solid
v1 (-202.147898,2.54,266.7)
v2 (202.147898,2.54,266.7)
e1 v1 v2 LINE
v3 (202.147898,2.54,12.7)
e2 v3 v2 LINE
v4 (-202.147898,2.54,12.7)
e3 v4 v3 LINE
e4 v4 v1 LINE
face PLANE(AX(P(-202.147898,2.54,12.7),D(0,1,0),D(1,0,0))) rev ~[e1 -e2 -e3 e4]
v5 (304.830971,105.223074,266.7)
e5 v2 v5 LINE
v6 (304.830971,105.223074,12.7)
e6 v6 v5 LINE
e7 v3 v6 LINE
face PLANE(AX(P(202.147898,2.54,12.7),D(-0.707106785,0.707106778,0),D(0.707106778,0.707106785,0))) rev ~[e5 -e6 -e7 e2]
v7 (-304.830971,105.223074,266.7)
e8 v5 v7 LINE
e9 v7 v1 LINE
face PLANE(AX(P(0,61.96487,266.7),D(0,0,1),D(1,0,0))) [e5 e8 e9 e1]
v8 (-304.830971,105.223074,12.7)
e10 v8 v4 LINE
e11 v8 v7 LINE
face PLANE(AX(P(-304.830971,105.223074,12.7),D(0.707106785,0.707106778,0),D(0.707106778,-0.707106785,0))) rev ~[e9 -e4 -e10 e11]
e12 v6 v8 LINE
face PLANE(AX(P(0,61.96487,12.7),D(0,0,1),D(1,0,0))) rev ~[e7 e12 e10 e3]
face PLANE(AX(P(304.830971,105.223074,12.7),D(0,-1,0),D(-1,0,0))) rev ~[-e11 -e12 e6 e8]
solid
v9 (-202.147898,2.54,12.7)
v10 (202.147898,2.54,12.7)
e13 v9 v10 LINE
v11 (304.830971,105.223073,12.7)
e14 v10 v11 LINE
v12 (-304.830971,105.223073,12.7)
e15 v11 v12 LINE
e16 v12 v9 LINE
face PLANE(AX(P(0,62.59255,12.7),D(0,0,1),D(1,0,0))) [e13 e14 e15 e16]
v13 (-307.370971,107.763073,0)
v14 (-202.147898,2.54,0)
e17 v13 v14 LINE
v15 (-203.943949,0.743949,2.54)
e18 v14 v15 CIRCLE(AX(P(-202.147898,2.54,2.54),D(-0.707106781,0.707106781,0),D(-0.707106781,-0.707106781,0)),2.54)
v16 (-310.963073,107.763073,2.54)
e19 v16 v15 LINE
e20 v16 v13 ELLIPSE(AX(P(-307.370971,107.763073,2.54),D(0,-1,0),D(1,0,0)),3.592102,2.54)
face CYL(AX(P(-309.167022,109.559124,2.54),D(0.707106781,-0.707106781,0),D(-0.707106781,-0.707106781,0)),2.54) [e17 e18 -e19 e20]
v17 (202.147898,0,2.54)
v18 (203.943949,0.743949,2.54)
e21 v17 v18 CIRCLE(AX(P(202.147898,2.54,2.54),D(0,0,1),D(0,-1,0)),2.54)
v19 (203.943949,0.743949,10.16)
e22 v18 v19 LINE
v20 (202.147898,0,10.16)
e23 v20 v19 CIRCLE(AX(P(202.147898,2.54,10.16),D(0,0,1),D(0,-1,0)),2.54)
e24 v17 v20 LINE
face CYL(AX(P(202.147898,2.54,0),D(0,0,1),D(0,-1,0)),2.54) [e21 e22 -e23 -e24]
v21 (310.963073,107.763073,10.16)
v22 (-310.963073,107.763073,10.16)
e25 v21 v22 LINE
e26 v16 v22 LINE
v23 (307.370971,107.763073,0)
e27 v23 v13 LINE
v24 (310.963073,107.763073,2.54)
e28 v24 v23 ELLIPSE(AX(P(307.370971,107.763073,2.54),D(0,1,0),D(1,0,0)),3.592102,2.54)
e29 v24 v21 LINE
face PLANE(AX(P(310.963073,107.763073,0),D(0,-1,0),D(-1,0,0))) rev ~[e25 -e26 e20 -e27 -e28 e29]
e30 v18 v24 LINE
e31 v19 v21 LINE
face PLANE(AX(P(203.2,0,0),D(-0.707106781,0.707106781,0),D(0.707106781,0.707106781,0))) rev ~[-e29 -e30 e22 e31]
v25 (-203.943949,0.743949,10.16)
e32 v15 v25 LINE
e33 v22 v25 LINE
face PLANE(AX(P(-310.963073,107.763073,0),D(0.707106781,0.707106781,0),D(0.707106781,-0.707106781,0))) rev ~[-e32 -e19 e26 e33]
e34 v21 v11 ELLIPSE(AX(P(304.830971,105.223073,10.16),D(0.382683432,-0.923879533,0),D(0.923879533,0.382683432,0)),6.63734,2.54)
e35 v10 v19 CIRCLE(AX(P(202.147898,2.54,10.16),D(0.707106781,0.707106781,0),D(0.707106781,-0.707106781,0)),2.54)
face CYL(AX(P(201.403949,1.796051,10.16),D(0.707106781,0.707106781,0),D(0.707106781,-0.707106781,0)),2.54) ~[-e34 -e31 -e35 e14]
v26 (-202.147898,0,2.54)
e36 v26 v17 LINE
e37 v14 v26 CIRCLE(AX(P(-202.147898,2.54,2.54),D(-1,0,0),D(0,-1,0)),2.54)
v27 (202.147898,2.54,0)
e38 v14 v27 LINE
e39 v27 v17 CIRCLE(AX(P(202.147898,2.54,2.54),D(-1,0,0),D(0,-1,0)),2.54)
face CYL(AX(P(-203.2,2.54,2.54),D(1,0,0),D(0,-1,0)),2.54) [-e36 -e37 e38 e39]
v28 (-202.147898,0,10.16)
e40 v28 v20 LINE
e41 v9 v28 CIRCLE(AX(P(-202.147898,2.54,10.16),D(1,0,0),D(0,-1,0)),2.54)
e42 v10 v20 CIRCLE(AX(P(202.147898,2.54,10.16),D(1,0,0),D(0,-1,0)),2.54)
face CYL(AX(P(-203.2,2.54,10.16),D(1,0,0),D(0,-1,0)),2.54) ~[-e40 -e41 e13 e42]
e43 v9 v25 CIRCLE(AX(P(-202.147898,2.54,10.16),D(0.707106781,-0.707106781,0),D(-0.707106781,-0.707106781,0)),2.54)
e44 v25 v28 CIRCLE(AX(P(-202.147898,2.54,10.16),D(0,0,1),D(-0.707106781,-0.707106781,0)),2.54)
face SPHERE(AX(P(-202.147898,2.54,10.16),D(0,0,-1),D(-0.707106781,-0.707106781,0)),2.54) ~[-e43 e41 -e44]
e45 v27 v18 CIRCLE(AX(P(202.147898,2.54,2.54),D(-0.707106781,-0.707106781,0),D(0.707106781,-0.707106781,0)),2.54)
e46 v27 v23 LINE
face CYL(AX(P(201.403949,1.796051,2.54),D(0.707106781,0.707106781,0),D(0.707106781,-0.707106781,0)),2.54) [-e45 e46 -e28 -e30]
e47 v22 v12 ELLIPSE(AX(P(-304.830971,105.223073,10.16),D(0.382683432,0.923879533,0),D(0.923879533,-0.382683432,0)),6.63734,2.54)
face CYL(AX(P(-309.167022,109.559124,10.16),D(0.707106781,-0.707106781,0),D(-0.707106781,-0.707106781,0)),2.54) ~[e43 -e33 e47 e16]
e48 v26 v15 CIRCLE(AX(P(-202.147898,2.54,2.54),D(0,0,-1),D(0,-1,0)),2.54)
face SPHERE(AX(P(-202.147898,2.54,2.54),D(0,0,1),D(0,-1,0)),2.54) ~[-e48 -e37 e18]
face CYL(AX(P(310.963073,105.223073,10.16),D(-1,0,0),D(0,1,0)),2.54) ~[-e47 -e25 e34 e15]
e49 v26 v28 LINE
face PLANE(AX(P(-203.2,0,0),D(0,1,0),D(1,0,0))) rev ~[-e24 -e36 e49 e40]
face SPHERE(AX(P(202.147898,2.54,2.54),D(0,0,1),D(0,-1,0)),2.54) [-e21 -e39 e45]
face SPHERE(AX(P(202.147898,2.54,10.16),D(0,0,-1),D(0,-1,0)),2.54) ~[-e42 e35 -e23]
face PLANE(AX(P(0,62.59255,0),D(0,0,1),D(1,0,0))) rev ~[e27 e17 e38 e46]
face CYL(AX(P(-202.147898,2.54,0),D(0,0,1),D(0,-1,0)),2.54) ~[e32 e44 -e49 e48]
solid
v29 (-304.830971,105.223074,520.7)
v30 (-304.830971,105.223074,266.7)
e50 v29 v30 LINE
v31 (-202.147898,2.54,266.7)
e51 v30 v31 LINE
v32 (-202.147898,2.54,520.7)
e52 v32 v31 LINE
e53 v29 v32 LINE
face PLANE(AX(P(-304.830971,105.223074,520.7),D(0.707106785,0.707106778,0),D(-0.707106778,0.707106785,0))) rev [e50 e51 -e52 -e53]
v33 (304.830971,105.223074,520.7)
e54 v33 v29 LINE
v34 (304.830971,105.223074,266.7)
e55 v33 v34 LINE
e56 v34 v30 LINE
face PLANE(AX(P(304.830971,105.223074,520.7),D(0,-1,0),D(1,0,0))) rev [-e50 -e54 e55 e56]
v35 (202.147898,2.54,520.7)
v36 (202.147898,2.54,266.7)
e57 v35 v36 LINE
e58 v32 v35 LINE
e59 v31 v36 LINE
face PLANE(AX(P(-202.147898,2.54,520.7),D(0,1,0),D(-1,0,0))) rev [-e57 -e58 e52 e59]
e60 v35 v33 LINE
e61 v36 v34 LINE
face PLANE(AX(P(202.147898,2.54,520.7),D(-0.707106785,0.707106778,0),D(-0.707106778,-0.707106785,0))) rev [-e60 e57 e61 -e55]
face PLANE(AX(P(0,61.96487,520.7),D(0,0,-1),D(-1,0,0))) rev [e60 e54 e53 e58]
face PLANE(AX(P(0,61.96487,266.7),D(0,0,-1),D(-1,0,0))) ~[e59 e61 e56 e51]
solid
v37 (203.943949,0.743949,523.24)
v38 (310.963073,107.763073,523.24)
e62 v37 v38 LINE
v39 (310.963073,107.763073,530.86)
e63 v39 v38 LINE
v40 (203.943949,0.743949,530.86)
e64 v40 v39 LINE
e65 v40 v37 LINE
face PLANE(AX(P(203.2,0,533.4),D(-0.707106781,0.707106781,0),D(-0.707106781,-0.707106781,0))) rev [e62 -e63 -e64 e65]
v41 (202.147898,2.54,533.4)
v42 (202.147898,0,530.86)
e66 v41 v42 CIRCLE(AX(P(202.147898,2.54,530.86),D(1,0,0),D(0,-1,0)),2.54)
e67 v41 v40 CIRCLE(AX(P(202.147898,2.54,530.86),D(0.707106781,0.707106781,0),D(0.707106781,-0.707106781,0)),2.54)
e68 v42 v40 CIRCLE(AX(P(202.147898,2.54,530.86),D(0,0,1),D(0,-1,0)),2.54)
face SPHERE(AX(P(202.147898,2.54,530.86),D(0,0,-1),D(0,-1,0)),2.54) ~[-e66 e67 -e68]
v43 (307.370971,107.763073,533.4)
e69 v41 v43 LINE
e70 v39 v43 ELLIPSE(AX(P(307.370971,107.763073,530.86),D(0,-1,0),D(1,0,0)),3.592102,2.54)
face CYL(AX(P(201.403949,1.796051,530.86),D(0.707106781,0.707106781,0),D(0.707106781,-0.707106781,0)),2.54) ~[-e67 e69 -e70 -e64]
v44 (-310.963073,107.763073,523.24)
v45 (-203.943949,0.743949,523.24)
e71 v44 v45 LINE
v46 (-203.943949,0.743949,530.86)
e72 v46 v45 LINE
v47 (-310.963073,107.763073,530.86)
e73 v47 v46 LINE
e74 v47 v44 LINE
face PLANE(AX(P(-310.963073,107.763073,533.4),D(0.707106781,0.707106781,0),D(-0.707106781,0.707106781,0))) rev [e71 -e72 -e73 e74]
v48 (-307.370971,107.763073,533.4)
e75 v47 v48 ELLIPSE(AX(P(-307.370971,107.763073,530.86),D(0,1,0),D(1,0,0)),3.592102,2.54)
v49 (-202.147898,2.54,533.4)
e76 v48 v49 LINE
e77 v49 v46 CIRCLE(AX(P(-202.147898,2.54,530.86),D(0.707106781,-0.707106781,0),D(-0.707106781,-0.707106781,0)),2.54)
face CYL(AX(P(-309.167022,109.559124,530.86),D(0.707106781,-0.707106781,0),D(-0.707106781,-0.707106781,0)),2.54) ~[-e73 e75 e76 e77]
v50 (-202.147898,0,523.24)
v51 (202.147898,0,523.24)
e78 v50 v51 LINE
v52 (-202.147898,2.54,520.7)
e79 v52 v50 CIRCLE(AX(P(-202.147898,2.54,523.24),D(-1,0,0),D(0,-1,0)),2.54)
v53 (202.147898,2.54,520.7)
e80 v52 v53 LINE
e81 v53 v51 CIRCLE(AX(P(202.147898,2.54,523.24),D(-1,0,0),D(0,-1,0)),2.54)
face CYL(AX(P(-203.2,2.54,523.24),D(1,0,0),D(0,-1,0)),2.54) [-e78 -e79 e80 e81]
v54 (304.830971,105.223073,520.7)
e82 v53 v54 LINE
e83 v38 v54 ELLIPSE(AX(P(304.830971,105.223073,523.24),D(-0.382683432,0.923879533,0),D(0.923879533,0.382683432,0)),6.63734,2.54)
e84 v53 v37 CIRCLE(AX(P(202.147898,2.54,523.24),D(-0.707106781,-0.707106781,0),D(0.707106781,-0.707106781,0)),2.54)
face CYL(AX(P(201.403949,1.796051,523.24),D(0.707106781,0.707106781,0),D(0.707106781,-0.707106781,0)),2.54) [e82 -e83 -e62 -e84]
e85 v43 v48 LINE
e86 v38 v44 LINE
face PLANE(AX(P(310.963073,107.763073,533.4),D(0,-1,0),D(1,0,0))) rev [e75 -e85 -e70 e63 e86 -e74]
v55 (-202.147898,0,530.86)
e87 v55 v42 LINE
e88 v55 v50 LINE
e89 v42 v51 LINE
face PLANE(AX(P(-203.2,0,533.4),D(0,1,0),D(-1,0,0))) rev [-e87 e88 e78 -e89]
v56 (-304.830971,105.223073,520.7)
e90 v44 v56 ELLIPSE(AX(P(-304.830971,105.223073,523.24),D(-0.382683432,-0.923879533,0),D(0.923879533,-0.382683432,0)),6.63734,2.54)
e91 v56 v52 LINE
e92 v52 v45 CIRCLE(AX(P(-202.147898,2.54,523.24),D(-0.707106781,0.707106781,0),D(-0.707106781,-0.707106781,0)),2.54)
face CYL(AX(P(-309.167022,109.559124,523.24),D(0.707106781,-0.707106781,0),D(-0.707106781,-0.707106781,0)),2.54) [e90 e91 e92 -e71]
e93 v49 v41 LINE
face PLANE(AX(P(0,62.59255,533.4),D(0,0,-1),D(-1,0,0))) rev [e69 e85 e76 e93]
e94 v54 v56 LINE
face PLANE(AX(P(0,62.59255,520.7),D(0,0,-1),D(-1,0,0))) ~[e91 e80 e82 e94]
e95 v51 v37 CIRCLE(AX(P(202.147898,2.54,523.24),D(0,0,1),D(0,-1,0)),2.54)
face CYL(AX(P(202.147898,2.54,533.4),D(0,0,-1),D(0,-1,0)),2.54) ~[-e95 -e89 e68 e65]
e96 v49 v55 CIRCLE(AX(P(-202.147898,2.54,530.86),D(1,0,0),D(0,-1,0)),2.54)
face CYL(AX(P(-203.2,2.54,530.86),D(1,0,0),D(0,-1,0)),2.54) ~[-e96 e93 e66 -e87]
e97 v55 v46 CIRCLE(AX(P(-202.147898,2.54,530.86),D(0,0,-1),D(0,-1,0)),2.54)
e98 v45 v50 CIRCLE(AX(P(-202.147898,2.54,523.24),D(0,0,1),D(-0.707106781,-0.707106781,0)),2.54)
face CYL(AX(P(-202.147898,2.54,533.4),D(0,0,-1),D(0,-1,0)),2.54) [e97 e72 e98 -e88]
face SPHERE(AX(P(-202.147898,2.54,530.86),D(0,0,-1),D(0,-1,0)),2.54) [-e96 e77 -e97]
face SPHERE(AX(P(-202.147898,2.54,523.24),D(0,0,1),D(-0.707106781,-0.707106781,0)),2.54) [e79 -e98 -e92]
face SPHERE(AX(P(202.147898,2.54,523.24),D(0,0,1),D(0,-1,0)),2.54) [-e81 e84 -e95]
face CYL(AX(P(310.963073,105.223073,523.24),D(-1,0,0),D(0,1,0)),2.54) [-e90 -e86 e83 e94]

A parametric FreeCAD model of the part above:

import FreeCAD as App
import Part
import Sketcher
Q = App.Units.Quantity


def edges_at(feature, points):
    """Names of the edges that pass closest to the given points."""
    edges = feature.Shape.Edges
    near = lambda p: min(range(len(edges)), key=lambda i: edges[i].distToShape(Part.Vertex(*p))[0])
    return sorted({f"Edge{near(p) + 1}" for p in points})


def add_polygon(sketch, points):
    """Adds a closed chain of lines whose ends are joined by coincident constraints."""
    first, n = sketch.GeometryCount, len(points)
    for a, b in zip(points, points[1:] + points[:1]):
        sketch.addGeometry(Part.LineSegment(App.Vector(*a, 0), App.Vector(*b, 0)), False)
    for i in range(n):
        sketch.addConstraint(Sketcher.Constraint("Coincident", first + i, 2, first + (i + 1) % n, 1))

doc = App.newDocument("Part")
body = doc.addObject("PartDesign::Body", "Body")

sketch1 = doc.addObject("Sketcher::SketchObject", "Sketch")
body.addObject(sketch1)
sketch1.AttachmentSupport = (doc.XY_Plane, [""])
sketch1.MapMode = "FlatFace"
add_polygon(sketch1, [(-203.2, 0), (203.2, 0), (310.963073, 107.763073), (-310.963073, 107.763073)])
sketch1.addConstraint([
    Sketcher.Constraint("Horizontal", 0),
    Sketcher.Constraint("Horizontal", 2),
    Sketcher.Constraint("Symmetric", 0, 2, 3, 2, -1, 1),
    Sketcher.Constraint("Perpendicular", 1, 3),
    Sketcher.Constraint("Equal", 1, 3),
    Sketcher.Constraint("DistanceX", 0, 1, 0, 2, Q("16 in")),
    Sketcher.Constraint("Distance", 1, Q("6 in")),
])
pad1 = doc.addObject("PartDesign::Pad", "Pad")
body.addObject(pad1)
pad1.Profile = sketch1
pad1.Length = Q("0.5 in")
doc.recompute()

fillet = doc.addObject("PartDesign::Fillet", "Fillet")
body.addObject(fillet)
fillet.Base = (pad1, edges_at(pad1, [
    (-257.082, 53.882, 12.7),
    (0, 0, 12.7),
    (257.082, 53.882, 12.7),
    (0, 107.763, 12.7),
    (-203.2, 0, 6.35),
    (203.2, 0, 6.35),
    (0, 0, 0),
    (257.082, 53.882, 0),
    (-257.082, 53.882, 0),
]))
fillet.Radius = Q("0.1 in")
body2 = doc.addObject("PartDesign::Body", "Body001")

sketch2 = doc.addObject("Sketcher::SketchObject", "Sketch001")
body2.addObject(sketch2)
sketch2.AttachmentSupport = (doc.getObject("XY_Plane001"), [""])
sketch2.MapMode = "FlatFace"
sketch2.AttachmentOffset = App.Placement(App.Vector(0, 0, 0.5 * 25.4), App.Rotation())
add_polygon(sketch2, [(-304.830971, 105.223074), (-202.147898, 2.54), (202.147898, 2.54), (304.830971, 105.223074)])
sketch2.addConstraint([
    Sketcher.Constraint("Horizontal", 1),
    Sketcher.Constraint("Horizontal", 3),
    Sketcher.Constraint("Perpendicular", 0, 2),
    Sketcher.Constraint("Equal", 0, 2),
    Sketcher.Constraint("DistanceY", -1, 1, 0, 2, Q("0.1 in")),
    Sketcher.Constraint("DistanceX", 3, 2, 3, 1, Q("609.661942 mm")),
    Sketcher.Constraint("DistanceX", 0, 2, -1, 1, Q("202.147898 mm")),
    Sketcher.Constraint("DistanceX", -1, 1, 1, 2, Q("202.147898 mm")),
])
pad2 = doc.addObject("PartDesign::Pad", "Pad001")
body2.addObject(pad2)
pad2.Profile = sketch2
pad2.Length = Q("10 in")
body3 = doc.addObject("PartDesign::Body", "Body002")
doc.recompute()

mirroring = doc.addObject("Part::Mirroring", "Mirroring")
mirroring.Source = body
mirroring.Base = App.Vector(0, 57.347761, 266.7)
mirroring.Normal = App.Vector(0, 0, 1)
body3.BaseFeature = mirroring
doc.recompute()
body4 = doc.addObject("PartDesign::Body", "Body003")
doc.recompute()

mirroring2 = doc.addObject("Part::Mirroring", "Mirroring001")
mirroring2.Source = body2
mirroring2.Base = App.Vector(0, 57.347761, 266.7)
mirroring2.Normal = App.Vector(0, 0, 1)
body4.BaseFeature = mirroring2
doc.recompute()
mirroring.Visibility = False
mirroring2.Visibility = False

doc.recompute()
